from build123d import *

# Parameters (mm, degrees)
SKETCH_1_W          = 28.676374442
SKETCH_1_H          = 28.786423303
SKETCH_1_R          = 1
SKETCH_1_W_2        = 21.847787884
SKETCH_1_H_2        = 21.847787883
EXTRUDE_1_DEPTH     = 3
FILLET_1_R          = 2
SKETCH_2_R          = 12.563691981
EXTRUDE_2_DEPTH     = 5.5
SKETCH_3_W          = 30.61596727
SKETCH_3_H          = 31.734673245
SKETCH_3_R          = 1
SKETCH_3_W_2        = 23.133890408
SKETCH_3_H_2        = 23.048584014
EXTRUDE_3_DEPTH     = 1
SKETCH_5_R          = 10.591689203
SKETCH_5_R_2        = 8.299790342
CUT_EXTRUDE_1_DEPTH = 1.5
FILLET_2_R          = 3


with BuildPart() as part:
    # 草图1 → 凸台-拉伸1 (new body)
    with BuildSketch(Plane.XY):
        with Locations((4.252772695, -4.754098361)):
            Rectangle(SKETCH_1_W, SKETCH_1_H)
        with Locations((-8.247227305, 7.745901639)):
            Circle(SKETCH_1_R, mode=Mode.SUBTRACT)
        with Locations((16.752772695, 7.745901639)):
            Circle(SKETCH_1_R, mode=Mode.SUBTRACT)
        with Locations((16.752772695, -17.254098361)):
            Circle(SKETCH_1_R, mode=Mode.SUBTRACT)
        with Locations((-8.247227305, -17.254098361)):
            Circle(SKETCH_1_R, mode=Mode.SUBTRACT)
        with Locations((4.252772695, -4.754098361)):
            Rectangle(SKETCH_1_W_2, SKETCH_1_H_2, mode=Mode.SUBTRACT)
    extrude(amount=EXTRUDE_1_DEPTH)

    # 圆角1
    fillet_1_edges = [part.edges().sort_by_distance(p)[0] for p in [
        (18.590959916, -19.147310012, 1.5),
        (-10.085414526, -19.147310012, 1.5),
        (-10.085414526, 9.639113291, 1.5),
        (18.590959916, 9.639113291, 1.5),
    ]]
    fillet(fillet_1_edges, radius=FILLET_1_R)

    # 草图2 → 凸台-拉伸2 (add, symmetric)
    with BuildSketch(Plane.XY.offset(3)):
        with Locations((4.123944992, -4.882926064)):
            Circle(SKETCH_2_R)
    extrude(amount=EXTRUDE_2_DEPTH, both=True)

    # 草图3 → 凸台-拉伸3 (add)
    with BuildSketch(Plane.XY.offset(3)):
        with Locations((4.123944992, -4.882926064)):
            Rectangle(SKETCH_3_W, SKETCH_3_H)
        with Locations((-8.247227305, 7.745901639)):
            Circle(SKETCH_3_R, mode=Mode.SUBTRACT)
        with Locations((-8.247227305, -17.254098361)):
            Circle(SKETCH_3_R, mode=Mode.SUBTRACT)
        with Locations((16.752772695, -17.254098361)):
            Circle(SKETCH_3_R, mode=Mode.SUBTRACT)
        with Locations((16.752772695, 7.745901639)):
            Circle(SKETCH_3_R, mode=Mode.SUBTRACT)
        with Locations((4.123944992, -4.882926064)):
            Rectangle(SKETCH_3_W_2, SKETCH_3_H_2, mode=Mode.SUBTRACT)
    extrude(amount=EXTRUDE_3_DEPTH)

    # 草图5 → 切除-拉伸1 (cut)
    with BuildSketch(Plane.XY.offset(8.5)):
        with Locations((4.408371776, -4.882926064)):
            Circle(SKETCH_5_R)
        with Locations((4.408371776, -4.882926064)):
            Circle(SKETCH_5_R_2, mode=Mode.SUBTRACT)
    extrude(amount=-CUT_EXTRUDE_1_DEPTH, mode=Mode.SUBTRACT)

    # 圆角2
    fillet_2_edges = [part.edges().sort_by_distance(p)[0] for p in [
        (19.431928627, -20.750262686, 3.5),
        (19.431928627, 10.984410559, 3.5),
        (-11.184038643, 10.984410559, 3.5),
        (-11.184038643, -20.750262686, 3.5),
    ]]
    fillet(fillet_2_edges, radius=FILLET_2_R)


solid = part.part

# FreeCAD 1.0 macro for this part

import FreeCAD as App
import Part
import Sketcher
from FreeCAD import Vector


def edges_at(feature, points):
    """Names of the edges that pass closest to the given points."""
    edges = feature.Shape.Edges
    near = lambda p: min(range(len(edges)), key=lambda i: edges[i].distToShape(Part.Vertex(*p))[0])
    return sorted({f"Edge{near(p) + 1}" for p in points})

doc = App.newDocument("Part")
params = doc.addObject("Spreadsheet::Sheet", "Params")
for row, (alias, value) in enumerate([
    ("sketch1_diameter", "2 mm"),
    ("pad1_length", "3 mm"),
    ("fillet_radius", "2 mm"),
    ("pad2_length", "11 mm"),
    ("sketch3_diameter", "2 mm"),
    ("pad3_length", "1 mm"),
    ("pocket1_length", "1.5 mm"),
    ("fillet2_radius", "3 mm"),
], start=1):
    params.set(f"A{row}", alias)
    params.set(f"B{row}", "=" + value)
    params.setAlias(f"B{row}", alias)

body = doc.addObject("PartDesign::Body", "Body")

sketch1 = body.newObject("Sketcher::SketchObject", "Sketch")
sketch1.AttachmentSupport = (doc.getObject("XY_Plane"), [""])
sketch1.MapMode = "FlatFace"
sketch1.addGeometry(Part.LineSegment(Vector(-10.1, 9.6, 0), Vector(-10.1, -19.1, 0)), False)
sketch1.addGeometry(Part.LineSegment(Vector(-10.1, -19.1, 0), Vector(18.6, -19.1, 0)), False)
sketch1.addGeometry(Part.LineSegment(Vector(18.6, -19.1, 0), Vector(18.6, 9.6, 0)), False)
sketch1.addGeometry(Part.LineSegment(Vector(18.6, 9.6, 0), Vector(-10.1, 9.6, 0)), False)
sketch1.addGeometry(Part.Circle(Vector(-8.2, -17.3, 0), Vector(0, 0, 1), 1), False)
sketch1.addGeometry(Part.Circle(Vector(16.8, -17.3, 0), Vector(0, 0, 1), 1), False)
sketch1.addGeometry(Part.Circle(Vector(-8.2, 7.7, 0), Vector(0, 0, 1), 1), False)
sketch1.addGeometry(Part.LineSegment(Vector(15.2, -15.7, 0), Vector(-6.7, -15.7, 0)), False)
sketch1.addGeometry(Part.LineSegment(Vector(-6.7, -15.7, 0), Vector(-6.7, 6.2, 0)), False)
sketch1.addGeometry(Part.LineSegment(Vector(-6.7, 6.2, 0), Vector(15.2, 6.2, 0)), False)
sketch1.addGeometry(Part.LineSegment(Vector(15.2, 6.2, 0), Vector(15.2, -15.7, 0)), False)
sketch1.addGeometry(Part.Circle(Vector(16.8, 7.7, 0), Vector(0, 0, 1), 1), False)
sketch1.addConstraint(Sketcher.Constraint("Coincident", 0, 2, 1, 1))
sketch1.addConstraint(Sketcher.Constraint("Coincident", 1, 2, 2, 1))
sketch1.addConstraint(Sketcher.Constraint("Coincident", 2, 2, 3, 1))
sketch1.addConstraint(Sketcher.Constraint("Coincident", 3, 2, 0, 1))
sketch1.addConstraint(Sketcher.Constraint("Coincident", 7, 2, 8, 1))
sketch1.addConstraint(Sketcher.Constraint("Coincident", 8, 2, 9, 1))
sketch1.addConstraint(Sketcher.Constraint("Coincident", 9, 2, 10, 1))
sketch1.addConstraint(Sketcher.Constraint("Coincident", 10, 2, 7, 1))
sketch1.addConstraint(Sketcher.Constraint("Vertical", 0))
sketch1.addConstraint(Sketcher.Constraint("Horizontal", 1))
sketch1.addConstraint(Sketcher.Constraint("Vertical", 2))
sketch1.addConstraint(Sketcher.Constraint("Horizontal", 3))
sketch1.addConstraint(Sketcher.Constraint("Horizontal", 7))
sketch1.addConstraint(Sketcher.Constraint("Vertical", 8))
sketch1.addConstraint(Sketcher.Constraint("Horizontal", 9))
sketch1.addConstraint(Sketcher.Constraint("Vertical", 10))
sketch1.addConstraint(Sketcher.Constraint("Equal", 4, 5))
sketch1.addConstraint(Sketcher.Constraint("Equal", 5, 6))
sketch1.addConstraint(Sketcher.Constraint("Equal", 6, 11))
sketch1.addConstraint(Sketcher.Constraint("Horizontal", 4, 3, 5, 3))
sketch1.addConstraint(Sketcher.Constraint("Horizontal", 6, 3, 11, 3))
sketch1.addConstraint(Sketcher.Constraint("Vertical", 4, 3, 6, 3))
sketch1.addConstraint(Sketcher.Constraint("Vertical", 5, 3, 11, 3))
sketch1.addConstraint(Sketcher.Constraint("Equal", 9, 8))
sketch1.addConstraint(Sketcher.Constraint("Diameter", 4, 2.0))
sketch1.addConstraint(Sketcher.Constraint("DistanceX", 4, 3, 5, 3, 25.0))
sketch1.addConstraint(Sketcher.Constraint("DistanceY", 4, 3, 6, 3, 25.0))
sketch1.addConstraint(Sketcher.Constraint("DistanceY", 4, 3, -1, 1, 17.254098))
sketch1.addConstraint(Sketcher.Constraint("DistanceX", 1, 1, 1, 2, 28.676374))
sketch1.addConstraint(Sketcher.Constraint("DistanceX", 7, 2, 7, 1, 21.847788))
sketch1.addConstraint(Sketcher.Constraint("DistanceY", 0, 2, 0, 1, 28.786423))
sketch1.addConstraint(Sketcher.Constraint("DistanceY", 0, 2, -1, 1, 19.14731))
sketch1.addConstraint(Sketcher.Constraint("DistanceX", -1, 1, 1, 2, 18.59096))
sketch1.addConstraint(Sketcher.Constraint("DistanceX", 7, 2, -1, 1, 6.671121))
sketch1.addConstraint(Sketcher.Constraint("DistanceX", 4, 3, -1, 1, 8.247227))
sketch1.addConstraint(Sketcher.Constraint("DistanceY", 7, 2, -1, 1, 15.677992))
sketch1.setExpression("Constraints[24]", "Params.sketch1_diameter")
pad1 = body.newObject("PartDesign::Pad", "Pad")
pad1.Profile = sketch1
pad1.setExpression("Length", "Params.pad1_length")
doc.recompute()

fillet = body.newObject("PartDesign::Fillet", "Fillet")
fillet.Base = (pad1, edges_at(pad1, [
    (18.591, -19.147, 1.5),
    (-10.085, -19.147, 1.5),
    (-10.085, 9.639, 1.5),
    (18.591, 9.639, 1.5),
]))
fillet.setExpression("Radius", "Params.fillet_radius")

sketch2 = body.newObject("Sketcher::SketchObject", "Sketch001")
sketch2.AttachmentSupport = (doc.getObject("XY_Plane"), [""])
sketch2.MapMode = "FlatFace"
sketch2.AttachmentOffset = App.Placement(Vector(0, 0, 3), App.Rotation())
sketch2.addGeometry(Part.Circle(Vector(4, -5, 0), Vector(0, 0, 1), 13), False)
sketch2.addConstraint(Sketcher.Constraint("Diameter", 0, 25.127384))
sketch2.addConstraint(Sketcher.Constraint("DistanceX", -1, 1, 0, 3, 4.123945))
sketch2.addConstraint(Sketcher.Constraint("DistanceY", 0, 3, -1, 1, 4.882926))
pad2 = body.newObject("PartDesign::Pad", "Pad001")
pad2.Profile = sketch2
pad2.setExpression("Length", "Params.pad2_length")
pad2.Midplane = True

sketch3 = body.newObject("Sketcher::SketchObject", "Sketch002")
sketch3.AttachmentSupport = (doc.getObject("XY_Plane"), [""])
sketch3.MapMode = "FlatFace"
sketch3.AttachmentOffset = App.Placement(Vector(0, 0, 3), App.Rotation())
sketch3.addGeometry(Part.LineSegment(Vector(-11.2, 11, 0), Vector(-11.2, -20.8, 0)), False)
sketch3.addGeometry(Part.LineSegment(Vector(-11.2, -20.8, 0), Vector(19.4, -20.8, 0)), False)
sketch3.addGeometry(Part.LineSegment(Vector(19.4, -20.8, 0), Vector(19.4, 11, 0)), False)
sketch3.addGeometry(Part.LineSegment(Vector(19.4, 11, 0), Vector(-11.2, 11, 0)), False)
sketch3.addGeometry(Part.Circle(Vector(-8.2, -17.3, 0), Vector(0, 0, 1), 1), False)
sketch3.addGeometry(Part.LineSegment(Vector(15.7, -16.4, 0), Vector(-7.4, -16.4, 0)), False)
sketch3.addGeometry(Part.LineSegment(Vector(-7.4, -16.4, 0), Vector(-7.4, 6.6, 0)), False)
sketch3.addGeometry(Part.LineSegment(Vector(-7.4, 6.6, 0), Vector(15.7, 6.6, 0)), False)
sketch3.addGeometry(Part.LineSegment(Vector(15.7, 6.6, 0), Vector(15.7, -16.4, 0)), False)
sketch3.addGeometry(Part.Circle(Vector(16.8, -17.3, 0), Vector(0, 0, 1), 1), False)
sketch3.addGeometry(Part.Circle(Vector(-8.2, 7.7, 0), Vector(0, 0, 1), 1), False)
sketch3.addGeometry(Part.Circle(Vector(16.8, 7.7, 0), Vector(0, 0, 1), 1), False)
sketch3.addConstraint(Sketcher.Constraint("Coincident", 0, 2, 1, 1))
sketch3.addConstraint(Sketcher.Constraint("Coincident", 1, 2, 2, 1))
sketch3.addConstraint(Sketcher.Constraint("Coincident", 2, 2, 3, 1))
sketch3.addConstraint(Sketcher.Constraint("Coincident", 3, 2, 0, 1))
sketch3.addConstraint(Sketcher.Constraint("Coincident", 5, 2, 6, 1))
sketch3.addConstraint(Sketcher.Constraint("Coincident", 6, 2, 7, 1))
sketch3.addConstraint(Sketcher.Constraint("Coincident", 7, 2, 8, 1))
sketch3.addConstraint(Sketcher.Constraint("Coincident", 8, 2, 5, 1))
sketch3.addConstraint(Sketcher.Constraint("Vertical", 0))
sketch3.addConstraint(Sketcher.Constraint("Horizontal", 1))
sketch3.addConstraint(Sketcher.Constraint("Vertical", 2))
sketch3.addConstraint(Sketcher.Constraint("Horizontal", 3))
sketch3.addConstraint(Sketcher.Constraint("Horizontal", 5))
sketch3.addConstraint(Sketcher.Constraint("Vertical", 6))
sketch3.addConstraint(Sketcher.Constraint("Horizontal", 7))
sketch3.addConstraint(Sketcher.Constraint("Vertical", 8))
sketch3.addConstraint(Sketcher.Constraint("Equal", 4, 9))
sketch3.addConstraint(Sketcher.Constraint("Equal", 9, 10))
sketch3.addConstraint(Sketcher.Constraint("Equal", 10, 11))
sketch3.addConstraint(Sketcher.Constraint("Horizontal", 4, 3, 9, 3))
sketch3.addConstraint(Sketcher.Constraint("Horizontal", 10, 3, 11, 3))
sketch3.addConstraint(Sketcher.Constraint("Vertical", 4, 3, 10, 3))
sketch3.addConstraint(Sketcher.Constraint("Vertical", 9, 3, 11, 3))
sketch3.addConstraint(Sketcher.Constraint("Diameter", 4, 2.0))
sketch3.addConstraint(Sketcher.Constraint("DistanceX", 4, 3, 9, 3, 25.0))
sketch3.addConstraint(Sketcher.Constraint("DistanceY", 4, 3, 10, 3, 25.0))
sketch3.addConstraint(Sketcher.Constraint("DistanceX", 5, 2, -1, 1, 7.443))
sketch3.addConstraint(Sketcher.Constraint("DistanceX", 5, 2, 5, 1, 23.13389))
sketch3.addConstraint(Sketcher.Constraint("DistanceY", 4, 3, -1, 1, 17.254098))
sketch3.addConstraint(Sketcher.Constraint("DistanceX", 1, 1, 1, 2, 30.615967))
sketch3.addConstraint(Sketcher.Constraint("DistanceY", 0, 2, 0, 1, 31.734673))
sketch3.addConstraint(Sketcher.Constraint("DistanceY", 6, 1, 6, 2, 23.048584))
sketch3.addConstraint(Sketcher.Constraint("DistanceX", 0, 2, -1, 1, 11.184039))
sketch3.addConstraint(Sketcher.Constraint("DistanceY", -1, 1, 2, 2, 10.984411))
sketch3.addConstraint(Sketcher.Constraint("DistanceY", 5, 2, -1, 1, 16.407218))
sketch3.addConstraint(Sketcher.Constraint("DistanceX", 0, 2, 4, 3, 2.936811))
sketch3.setExpression("Constraints[23]", "Params.sketch3_diameter")
pad3 = body.newObject("PartDesign::Pad", "Pad002")
pad3.Profile = sketch3
pad3.setExpression("Length", "Params.pad3_length")

sketch4 = body.newObject("Sketcher::SketchObject", "Sketch003")
sketch4.AttachmentSupport = (doc.getObject("XY_Plane"), [""])
sketch4.MapMode = "FlatFace"
sketch4.AttachmentOffset = App.Placement(Vector(0, 0, 8.5), App.Rotation())
sketch4.addGeometry(Part.Circle(Vector(4, -5, 0), Vector(0, 0, 1), 11), False)
sketch4.addGeometry(Part.Circle(Vector(4, -5, 0), Vector(0, 0, 1), 8), False)
sketch4.addConstraint(Sketcher.Constraint("Coincident", 1, 3, 0, 3))
sketch4.addConstraint(Sketcher.Constraint("Diameter", 0, 21.183378))
sketch4.addConstraint(Sketcher.Constraint("Diameter", 1, 16.599581))
sketch4.addConstraint(Sketcher.Constraint("DistanceX", -1, 1, 0, 3, 4.408372))
sketch4.addConstraint(Sketcher.Constraint("DistanceY", 0, 3, -1, 1, 4.882926))
pocket1 = body.newObject("PartDesign::Pocket", "Pocket")
pocket1.Profile = sketch4
pocket1.setExpression("Length", "Params.pocket1_length")
doc.recompute()

fillet2 = body.newObject("PartDesign::Fillet", "Fillet001")
fillet2.Base = (pocket1, edges_at(pocket1, [
    (19.432, -20.75, 3.5),
    (19.432, 10.984, 3.5),
    (-11.184, 10.984, 3.5),
    (-11.184, -20.75, 3.5),
]))
fillet2.setExpression("Radius", "Params.fillet2_radius")

doc.recompute()
